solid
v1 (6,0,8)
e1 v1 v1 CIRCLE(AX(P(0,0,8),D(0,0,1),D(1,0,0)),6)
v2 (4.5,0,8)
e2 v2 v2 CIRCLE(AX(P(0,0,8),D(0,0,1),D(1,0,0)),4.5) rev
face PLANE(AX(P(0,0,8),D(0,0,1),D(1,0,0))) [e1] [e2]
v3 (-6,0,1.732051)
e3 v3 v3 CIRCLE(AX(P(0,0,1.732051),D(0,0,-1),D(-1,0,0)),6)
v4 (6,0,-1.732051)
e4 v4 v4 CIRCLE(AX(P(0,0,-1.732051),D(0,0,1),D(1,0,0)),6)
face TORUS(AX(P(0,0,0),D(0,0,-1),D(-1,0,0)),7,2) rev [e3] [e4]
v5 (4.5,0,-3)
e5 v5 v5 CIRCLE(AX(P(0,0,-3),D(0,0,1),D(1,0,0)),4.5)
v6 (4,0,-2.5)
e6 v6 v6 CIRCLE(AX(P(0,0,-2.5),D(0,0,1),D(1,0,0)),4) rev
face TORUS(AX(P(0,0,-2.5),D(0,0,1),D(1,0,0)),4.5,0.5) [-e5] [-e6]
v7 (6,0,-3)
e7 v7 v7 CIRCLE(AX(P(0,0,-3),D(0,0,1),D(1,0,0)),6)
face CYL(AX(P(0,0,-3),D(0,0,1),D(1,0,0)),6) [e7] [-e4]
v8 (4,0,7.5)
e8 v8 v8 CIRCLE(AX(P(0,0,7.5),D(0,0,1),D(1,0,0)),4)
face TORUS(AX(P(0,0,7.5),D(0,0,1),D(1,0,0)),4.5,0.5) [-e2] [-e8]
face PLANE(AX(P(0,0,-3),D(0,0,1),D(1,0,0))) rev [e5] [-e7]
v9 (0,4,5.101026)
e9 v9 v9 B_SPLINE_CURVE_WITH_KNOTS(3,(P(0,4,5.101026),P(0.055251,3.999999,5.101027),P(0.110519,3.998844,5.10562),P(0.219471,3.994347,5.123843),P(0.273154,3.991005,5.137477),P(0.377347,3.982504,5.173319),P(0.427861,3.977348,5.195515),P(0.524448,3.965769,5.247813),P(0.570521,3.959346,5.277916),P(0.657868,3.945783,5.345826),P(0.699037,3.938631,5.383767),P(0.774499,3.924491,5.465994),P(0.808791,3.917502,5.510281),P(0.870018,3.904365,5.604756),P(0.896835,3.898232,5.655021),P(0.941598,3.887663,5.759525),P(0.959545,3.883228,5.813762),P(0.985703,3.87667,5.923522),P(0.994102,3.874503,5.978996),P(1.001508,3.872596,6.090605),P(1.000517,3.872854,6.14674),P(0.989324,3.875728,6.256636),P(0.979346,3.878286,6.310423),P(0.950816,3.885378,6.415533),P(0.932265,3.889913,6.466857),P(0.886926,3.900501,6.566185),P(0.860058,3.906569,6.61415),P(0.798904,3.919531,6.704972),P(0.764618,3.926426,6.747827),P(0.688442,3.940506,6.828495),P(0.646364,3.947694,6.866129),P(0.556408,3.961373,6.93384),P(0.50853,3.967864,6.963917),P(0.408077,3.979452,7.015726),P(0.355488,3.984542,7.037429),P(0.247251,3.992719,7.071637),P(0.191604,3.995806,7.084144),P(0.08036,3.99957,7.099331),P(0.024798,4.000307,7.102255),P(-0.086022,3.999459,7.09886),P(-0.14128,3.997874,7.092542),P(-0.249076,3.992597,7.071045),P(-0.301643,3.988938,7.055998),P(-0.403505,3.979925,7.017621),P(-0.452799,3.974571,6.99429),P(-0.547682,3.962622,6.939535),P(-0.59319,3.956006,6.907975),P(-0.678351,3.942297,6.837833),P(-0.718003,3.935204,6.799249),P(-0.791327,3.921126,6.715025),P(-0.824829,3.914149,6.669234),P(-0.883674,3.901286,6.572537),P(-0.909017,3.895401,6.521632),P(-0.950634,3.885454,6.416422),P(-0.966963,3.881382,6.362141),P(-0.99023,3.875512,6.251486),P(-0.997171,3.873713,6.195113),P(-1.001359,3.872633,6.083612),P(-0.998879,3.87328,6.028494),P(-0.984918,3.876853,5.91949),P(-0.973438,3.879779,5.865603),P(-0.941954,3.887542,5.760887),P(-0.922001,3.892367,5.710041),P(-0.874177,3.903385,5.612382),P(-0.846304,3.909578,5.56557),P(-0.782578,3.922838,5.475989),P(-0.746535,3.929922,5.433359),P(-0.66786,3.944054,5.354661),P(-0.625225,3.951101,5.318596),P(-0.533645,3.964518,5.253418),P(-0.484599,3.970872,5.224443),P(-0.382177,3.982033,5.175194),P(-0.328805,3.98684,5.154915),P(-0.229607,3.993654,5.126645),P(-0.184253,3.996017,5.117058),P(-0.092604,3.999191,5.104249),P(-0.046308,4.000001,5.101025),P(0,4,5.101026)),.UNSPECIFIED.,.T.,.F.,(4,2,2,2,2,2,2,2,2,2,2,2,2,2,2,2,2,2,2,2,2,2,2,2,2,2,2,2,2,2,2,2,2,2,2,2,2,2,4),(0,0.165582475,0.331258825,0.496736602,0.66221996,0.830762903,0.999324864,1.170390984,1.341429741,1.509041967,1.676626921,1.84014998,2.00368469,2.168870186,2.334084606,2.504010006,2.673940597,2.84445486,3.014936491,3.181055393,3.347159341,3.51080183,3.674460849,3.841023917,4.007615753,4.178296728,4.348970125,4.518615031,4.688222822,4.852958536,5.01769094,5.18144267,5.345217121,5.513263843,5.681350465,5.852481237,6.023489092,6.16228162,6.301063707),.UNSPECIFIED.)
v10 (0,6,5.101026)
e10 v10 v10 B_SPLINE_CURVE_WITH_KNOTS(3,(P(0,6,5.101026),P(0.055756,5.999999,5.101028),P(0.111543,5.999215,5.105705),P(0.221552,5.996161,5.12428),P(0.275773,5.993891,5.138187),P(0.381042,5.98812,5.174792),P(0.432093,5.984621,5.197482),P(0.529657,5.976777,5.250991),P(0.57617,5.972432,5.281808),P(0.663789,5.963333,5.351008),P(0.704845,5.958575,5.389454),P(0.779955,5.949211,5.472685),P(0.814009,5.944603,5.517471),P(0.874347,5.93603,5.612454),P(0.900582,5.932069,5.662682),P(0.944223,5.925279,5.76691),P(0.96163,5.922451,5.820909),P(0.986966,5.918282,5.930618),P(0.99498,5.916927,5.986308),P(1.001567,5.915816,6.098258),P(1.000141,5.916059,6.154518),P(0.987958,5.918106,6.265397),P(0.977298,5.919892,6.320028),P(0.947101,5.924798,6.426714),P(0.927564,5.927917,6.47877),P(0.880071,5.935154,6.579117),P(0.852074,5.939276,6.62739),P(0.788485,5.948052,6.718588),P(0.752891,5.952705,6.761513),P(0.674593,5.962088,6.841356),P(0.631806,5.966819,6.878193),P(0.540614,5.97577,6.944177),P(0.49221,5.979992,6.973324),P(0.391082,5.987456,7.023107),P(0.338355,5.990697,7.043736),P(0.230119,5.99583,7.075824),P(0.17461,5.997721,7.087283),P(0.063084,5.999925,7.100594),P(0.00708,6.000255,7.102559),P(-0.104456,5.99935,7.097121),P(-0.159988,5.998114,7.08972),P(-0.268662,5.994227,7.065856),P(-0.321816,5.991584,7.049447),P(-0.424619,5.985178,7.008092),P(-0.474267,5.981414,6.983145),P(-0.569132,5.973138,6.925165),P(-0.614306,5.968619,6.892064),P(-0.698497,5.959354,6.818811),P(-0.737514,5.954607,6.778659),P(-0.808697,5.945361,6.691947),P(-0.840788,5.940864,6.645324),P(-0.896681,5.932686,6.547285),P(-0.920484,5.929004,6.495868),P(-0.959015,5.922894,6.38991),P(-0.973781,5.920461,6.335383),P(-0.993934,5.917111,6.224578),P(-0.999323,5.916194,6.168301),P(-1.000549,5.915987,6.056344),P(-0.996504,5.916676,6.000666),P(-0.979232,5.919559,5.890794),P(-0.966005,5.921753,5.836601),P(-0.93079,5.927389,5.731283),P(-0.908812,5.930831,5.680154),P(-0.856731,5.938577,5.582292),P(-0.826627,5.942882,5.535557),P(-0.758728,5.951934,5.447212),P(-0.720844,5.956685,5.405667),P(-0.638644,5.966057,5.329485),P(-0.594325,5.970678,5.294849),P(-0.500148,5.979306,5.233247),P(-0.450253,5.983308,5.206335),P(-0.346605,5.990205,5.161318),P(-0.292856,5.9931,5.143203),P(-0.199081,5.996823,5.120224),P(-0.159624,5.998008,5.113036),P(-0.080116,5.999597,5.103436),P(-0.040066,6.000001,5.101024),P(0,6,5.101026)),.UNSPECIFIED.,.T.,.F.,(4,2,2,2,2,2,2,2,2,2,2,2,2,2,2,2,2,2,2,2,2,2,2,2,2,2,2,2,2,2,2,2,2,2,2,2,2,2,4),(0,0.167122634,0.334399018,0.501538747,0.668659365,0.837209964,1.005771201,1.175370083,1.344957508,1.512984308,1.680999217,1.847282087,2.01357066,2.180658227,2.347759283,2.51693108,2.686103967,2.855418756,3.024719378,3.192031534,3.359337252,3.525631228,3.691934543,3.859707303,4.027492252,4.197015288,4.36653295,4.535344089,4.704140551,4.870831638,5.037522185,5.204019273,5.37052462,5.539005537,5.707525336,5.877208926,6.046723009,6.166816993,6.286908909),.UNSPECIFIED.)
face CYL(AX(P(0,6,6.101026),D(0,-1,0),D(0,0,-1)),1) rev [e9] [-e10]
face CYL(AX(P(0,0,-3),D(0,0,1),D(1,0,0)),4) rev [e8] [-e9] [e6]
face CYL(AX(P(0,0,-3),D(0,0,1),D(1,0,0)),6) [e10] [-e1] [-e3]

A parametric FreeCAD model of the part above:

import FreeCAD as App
import Part
import Sketcher
from FreeCAD import Vector
Q = App.Units.Quantity


def edges_at(feature, points):
    """Names of the edges that pass closest to the given points."""
    edges = feature.Shape.Edges
    near = lambda p: min(range(len(edges)), key=lambda i: edges[i].distToShape(Part.Vertex(*p))[0])
    return sorted({f"Edge{near(p) + 1}" for p in points})

doc = App.newDocument("Part")
body = doc.addObject("PartDesign::Body", "Body")

# Sketch on XY plane
sketch1 = body.newObject("Sketcher::SketchObject", "Sketch")
sketch1.AttachmentSupport = (doc.getObject("XY_Plane"), [""])
sketch1.MapMode = "FlatFace"
sketch1.addGeometry([
    Part.Circle(Vector(0, 0, 0), Vector(0, 0, 1), 6),
    Part.Circle(Vector(0, 0, 0), Vector(0, 0, 1), 4),
], False)
sketch1.addConstraint([
    Sketcher.Constraint("Coincident", 0, 3, -1, 1),
    Sketcher.Constraint("Coincident", 1, 3, -1, 1),
    Sketcher.Constraint("Diameter", 0, Q("12 mm")),
    Sketcher.Constraint("Diameter", 1, Q("8 mm")),
])
pad1 = body.newObject("PartDesign::Pad", "Pad")
pad1.Profile = sketch1
pad1.Type = "TwoLengths"
pad1.Length = 8
pad1.Length2 = 3

# Sketch on XZ plane
sketch2 = body.newObject("Sketcher::SketchObject", "Sketch001")
sketch2.AttachmentSupport = (doc.getObject("XZ_Plane"), [""])
sketch2.MapMode = "FlatFace"
sketch2.addGeometry(Part.Circle(Vector(-7, 0, 0), Vector(0, 0, 1), 2), False)
sketch2.addConstraint([
    Sketcher.Constraint("PointOnObject", 0, 3, -1),
    Sketcher.Constraint("Diameter", 0, Q("4 mm")),
    Sketcher.Constraint("DistanceX", 0, 3, -1, 1, Q("7 mm")),
])
groove = body.newObject("PartDesign::Groove", "Groove")
groove.Profile = sketch2
groove.ReferenceAxis = (sketch2, ["V_Axis"])
groove.Angle = 360
doc.recompute()

fillet = body.newObject("PartDesign::Fillet", "Fillet")
fillet.Base = (groove, edges_at(groove, [(-4, 0, -3), (-4, 0, 8)]))
fillet.Radius = 0.5

# Sketch on XZ plane
sketch3 = body.newObject("Sketcher::SketchObject", "Sketch002")
sketch3.AttachmentSupport = (doc.getObject("XZ_Plane"), [""])
sketch3.MapMode = "FlatFace"
sketch3.addGeometry(Part.Circle(Vector(0, 6.1, 0), Vector(0, 0, 1), 1), False)
sketch3.addConstraint([
    Sketcher.Constraint("PointOnObject", 0, 3, -2),
    Sketcher.Constraint("Diameter", 0, Q("2 mm")),
    Sketcher.Constraint("DistanceY", -1, 1, 0, 3, Q("6.101026 mm")),
])
pocket1 = body.newObject("PartDesign::Pocket", "Pocket")
pocket1.Profile = sketch3
pocket1.Type = "ThroughAll"

doc.recompute()
